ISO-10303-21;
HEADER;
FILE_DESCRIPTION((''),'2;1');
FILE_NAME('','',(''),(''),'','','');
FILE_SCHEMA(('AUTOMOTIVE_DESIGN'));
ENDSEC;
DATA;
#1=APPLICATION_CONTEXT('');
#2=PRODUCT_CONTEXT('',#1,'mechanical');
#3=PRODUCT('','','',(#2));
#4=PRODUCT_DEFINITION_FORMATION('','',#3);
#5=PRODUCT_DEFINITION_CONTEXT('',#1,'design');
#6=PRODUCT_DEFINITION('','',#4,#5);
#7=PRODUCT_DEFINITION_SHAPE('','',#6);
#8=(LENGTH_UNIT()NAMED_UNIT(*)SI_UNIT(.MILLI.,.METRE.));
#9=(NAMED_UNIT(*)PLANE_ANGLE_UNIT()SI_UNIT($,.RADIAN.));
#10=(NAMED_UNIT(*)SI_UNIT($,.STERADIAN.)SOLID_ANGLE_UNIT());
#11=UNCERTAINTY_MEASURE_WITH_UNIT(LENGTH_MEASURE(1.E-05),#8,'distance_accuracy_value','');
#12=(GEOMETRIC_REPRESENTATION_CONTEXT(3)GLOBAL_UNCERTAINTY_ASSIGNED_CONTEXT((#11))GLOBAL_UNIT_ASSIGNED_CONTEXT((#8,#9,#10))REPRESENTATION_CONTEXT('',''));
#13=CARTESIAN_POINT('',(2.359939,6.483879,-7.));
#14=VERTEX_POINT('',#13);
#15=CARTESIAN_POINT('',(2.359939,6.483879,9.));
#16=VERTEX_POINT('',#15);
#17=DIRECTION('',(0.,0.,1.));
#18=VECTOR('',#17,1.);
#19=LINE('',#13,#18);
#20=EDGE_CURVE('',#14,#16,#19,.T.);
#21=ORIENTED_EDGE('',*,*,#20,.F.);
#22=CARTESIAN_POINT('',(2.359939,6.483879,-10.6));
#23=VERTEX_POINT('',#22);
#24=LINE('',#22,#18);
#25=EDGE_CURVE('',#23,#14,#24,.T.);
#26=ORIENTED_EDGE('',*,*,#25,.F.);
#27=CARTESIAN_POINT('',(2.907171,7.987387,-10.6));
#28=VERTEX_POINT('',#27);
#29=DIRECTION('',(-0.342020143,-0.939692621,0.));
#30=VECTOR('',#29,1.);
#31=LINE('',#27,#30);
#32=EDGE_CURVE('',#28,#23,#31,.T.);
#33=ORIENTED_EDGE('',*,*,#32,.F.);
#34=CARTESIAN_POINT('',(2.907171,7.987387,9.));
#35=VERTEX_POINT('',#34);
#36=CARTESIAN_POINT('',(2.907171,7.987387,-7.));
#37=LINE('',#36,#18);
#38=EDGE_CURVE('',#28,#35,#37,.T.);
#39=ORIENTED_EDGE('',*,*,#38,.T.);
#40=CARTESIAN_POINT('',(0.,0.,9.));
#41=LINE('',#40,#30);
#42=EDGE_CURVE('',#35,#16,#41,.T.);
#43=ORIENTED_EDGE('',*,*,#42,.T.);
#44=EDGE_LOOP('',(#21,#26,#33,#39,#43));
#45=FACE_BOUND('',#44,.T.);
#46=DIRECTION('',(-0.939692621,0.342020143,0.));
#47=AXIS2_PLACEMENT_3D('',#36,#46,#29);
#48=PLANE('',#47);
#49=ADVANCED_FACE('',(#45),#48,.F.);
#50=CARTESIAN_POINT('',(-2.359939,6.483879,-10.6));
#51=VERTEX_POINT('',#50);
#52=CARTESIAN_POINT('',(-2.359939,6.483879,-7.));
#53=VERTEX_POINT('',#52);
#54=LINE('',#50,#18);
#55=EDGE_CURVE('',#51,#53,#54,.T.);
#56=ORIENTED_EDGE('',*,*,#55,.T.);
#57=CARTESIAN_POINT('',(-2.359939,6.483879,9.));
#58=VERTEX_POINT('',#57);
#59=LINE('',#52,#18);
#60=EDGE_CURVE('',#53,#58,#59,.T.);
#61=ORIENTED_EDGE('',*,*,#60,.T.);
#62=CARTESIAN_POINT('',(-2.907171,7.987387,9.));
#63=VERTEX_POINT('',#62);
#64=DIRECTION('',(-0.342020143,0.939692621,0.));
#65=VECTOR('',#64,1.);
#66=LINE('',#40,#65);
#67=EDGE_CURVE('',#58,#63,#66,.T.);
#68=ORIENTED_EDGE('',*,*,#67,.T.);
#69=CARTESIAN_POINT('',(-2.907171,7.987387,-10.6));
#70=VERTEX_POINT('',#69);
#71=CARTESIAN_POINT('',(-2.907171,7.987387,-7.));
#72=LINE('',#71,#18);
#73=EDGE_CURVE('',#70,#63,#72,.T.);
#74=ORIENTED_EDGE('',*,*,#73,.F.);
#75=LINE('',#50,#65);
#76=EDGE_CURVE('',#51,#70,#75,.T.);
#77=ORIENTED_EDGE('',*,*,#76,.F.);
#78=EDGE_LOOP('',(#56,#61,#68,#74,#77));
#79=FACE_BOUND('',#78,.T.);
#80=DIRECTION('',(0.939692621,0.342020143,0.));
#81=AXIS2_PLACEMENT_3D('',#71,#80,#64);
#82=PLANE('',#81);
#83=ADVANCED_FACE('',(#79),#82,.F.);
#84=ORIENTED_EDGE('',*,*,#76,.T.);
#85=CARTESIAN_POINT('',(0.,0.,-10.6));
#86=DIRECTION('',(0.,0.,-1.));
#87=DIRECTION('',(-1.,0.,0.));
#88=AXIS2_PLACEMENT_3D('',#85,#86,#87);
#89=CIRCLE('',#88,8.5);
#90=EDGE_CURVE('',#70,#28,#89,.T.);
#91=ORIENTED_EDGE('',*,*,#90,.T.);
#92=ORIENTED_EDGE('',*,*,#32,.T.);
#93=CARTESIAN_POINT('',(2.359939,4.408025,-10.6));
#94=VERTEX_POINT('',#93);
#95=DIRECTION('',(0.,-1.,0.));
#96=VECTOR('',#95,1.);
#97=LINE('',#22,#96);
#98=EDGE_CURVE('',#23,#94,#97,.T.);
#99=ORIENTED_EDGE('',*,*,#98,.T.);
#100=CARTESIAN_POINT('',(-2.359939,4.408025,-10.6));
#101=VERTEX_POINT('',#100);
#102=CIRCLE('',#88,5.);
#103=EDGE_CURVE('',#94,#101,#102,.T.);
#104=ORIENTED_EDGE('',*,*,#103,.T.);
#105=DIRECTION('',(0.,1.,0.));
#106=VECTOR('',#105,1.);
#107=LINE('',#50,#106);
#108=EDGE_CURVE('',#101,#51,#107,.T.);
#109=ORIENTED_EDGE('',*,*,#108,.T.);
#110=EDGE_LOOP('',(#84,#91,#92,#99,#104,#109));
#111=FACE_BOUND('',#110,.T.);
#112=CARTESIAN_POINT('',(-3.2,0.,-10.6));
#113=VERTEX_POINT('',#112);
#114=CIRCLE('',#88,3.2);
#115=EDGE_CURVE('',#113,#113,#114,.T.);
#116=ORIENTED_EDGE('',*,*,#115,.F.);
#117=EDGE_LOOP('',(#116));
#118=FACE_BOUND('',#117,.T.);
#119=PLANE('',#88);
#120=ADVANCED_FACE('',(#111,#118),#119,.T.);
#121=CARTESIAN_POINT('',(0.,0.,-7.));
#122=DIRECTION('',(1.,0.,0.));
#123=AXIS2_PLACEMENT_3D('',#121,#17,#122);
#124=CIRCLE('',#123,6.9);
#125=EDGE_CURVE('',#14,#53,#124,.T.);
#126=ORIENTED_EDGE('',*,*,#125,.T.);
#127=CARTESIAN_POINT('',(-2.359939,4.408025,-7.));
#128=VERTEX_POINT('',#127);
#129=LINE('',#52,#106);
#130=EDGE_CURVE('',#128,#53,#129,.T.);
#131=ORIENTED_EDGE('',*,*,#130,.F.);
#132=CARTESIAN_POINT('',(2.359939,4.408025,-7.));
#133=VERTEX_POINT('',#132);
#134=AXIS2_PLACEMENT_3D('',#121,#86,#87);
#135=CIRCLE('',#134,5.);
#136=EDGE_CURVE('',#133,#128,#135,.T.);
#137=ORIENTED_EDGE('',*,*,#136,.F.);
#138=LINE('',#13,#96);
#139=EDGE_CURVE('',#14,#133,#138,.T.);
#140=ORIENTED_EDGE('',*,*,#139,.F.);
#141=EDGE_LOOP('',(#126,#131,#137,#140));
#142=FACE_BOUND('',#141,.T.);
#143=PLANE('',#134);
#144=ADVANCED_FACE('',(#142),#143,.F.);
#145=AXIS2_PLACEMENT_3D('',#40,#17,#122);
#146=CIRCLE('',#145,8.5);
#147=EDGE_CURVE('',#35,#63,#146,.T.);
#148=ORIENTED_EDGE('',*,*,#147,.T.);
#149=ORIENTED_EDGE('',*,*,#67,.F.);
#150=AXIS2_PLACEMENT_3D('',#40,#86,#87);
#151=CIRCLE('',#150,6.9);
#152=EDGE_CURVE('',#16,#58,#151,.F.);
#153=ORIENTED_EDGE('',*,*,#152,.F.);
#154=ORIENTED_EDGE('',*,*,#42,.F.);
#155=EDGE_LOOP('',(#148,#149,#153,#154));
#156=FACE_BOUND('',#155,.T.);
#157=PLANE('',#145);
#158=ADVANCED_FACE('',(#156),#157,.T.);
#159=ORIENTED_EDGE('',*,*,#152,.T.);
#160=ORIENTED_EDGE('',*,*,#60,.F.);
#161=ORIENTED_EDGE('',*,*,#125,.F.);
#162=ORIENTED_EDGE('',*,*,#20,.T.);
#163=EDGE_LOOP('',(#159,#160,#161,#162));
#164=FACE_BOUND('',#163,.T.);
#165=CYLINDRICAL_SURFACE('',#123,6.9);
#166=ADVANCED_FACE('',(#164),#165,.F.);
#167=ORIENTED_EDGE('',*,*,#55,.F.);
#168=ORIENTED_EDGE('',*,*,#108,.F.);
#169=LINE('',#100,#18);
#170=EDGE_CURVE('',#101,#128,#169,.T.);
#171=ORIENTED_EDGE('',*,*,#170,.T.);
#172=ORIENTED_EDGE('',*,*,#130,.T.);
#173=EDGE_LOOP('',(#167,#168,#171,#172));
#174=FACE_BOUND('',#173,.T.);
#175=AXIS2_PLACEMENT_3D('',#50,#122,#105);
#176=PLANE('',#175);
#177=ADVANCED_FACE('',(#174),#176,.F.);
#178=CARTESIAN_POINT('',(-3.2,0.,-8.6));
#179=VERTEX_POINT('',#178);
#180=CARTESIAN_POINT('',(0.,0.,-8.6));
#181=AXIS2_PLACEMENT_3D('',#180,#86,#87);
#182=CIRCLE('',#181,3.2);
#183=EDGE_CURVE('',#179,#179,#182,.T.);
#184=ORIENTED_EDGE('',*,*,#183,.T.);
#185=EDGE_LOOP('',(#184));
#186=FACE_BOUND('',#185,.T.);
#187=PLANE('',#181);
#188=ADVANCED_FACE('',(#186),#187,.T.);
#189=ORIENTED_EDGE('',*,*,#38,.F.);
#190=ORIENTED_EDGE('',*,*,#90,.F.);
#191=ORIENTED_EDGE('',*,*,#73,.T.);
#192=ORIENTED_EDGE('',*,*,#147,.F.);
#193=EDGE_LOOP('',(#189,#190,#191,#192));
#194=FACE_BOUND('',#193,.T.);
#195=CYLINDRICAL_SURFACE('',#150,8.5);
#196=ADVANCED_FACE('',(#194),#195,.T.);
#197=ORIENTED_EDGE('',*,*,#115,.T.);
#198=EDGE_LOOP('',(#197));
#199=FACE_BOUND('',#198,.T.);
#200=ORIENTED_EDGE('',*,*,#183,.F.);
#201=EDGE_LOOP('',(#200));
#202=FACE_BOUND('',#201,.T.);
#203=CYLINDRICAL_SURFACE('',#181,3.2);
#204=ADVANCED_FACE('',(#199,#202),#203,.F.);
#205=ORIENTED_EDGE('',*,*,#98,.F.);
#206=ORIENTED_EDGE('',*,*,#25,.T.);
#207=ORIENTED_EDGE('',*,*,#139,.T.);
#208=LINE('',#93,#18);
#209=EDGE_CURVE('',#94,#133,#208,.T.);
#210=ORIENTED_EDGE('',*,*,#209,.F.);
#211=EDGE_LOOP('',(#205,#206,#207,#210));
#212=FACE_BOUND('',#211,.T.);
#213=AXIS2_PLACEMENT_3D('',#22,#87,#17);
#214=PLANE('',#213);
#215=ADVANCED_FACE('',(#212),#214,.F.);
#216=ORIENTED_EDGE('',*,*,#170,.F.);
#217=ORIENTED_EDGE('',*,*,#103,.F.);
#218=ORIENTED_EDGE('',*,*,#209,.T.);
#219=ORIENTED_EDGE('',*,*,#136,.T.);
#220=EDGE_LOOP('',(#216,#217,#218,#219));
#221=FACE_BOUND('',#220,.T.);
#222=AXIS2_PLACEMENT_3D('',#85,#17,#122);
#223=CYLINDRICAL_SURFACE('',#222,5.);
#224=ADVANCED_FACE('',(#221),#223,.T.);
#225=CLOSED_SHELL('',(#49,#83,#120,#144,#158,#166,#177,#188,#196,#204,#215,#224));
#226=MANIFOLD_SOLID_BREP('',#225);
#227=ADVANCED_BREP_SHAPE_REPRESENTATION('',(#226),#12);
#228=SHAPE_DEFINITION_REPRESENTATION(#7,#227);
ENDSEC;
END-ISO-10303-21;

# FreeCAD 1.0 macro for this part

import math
import FreeCAD as App
import Part
import Sketcher
Q = App.Units.Quantity


def add_polygon(sketch, points):
    """Adds a closed chain of lines whose ends are joined by coincident constraints."""
    first, n = sketch.GeometryCount, len(points)
    for a, b in zip(points, points[1:] + points[:1]):
        sketch.addGeometry(Part.LineSegment(App.Vector(*a, 0), App.Vector(*b, 0)), False)
    for i in range(n):
        sketch.addConstraint(Sketcher.Constraint("Coincident", first + i, 2, first + (i + 1) % n, 1))

doc = App.newDocument("Part")
params = doc.addObject("Spreadsheet::Sheet", "Params")
for row, (alias, value) in enumerate([
    ("sketch1_diameter", "17 mm"),
    ("sketch1_diameter2", "1.2 mm"),
    ("sketch1_diameter3", "7.2 mm"),
    ("sketch1_diameter4", "2.5 mm"),
    ("pad1_length", "9 mm"),
    ("sketch2_diameter", "8.6 mm"),
    ("pocket1_length", "0.8 mm"),
    ("sketch3_diameter", "11.8 mm"),
    ("sketch3_diameter2", "7.2 mm"),
    ("pad2_length", "2.5 mm"),
    ("sketch4_height", "2.5 mm"),
    ("groove_angle", "360 deg"),
    ("sketch5_diameter", "8.6 mm"),
    ("pocket2_length", "0.8 mm"),
    ("sketch6_radius", "6.9 mm"),
    ("sketch6_radius2", "8.5 mm"),
    ("pad3_length", "7 mm"),
    ("sketch7_radius", "8.5 mm"),
    ("sketch7_radius2", "6.9 mm"),
    ("sketch8_radius", "5 mm"),
    ("sketch8_radius2", "8.5 mm"),
    ("sketch8_length", "1.6 mm"),
    ("pad4_length", "3.6 mm"),
    ("sketch9_diameter", "6.4 mm"),
    ("pocket4_length", "2 mm"),
], start=1):
    params.set(f"A{row}", alias)
    params.set(f"B{row}", "=" + value)
    params.setAlias(f"B{row}", alias)

body = doc.addObject("PartDesign::Body", "Body")

# Sketch on XY plane
sketch1 = body.newObject("Sketcher::SketchObject", "Sketch")
sketch1.AttachmentSupport = (doc.getObject("XY_Plane"), [""])
sketch1.MapMode = "FlatFace"
sketch1.addGeometry(Part.Circle(App.Vector(0, 0, 0), App.Vector(0, 0, 1), 8.5), False)
sketch1.addGeometry(Part.Circle(App.Vector(-6.8, 0, 0), App.Vector(0, 0, 1), 0.6), False)
sketch1.addGeometry(Part.Circle(App.Vector(0, 0, 0), App.Vector(0, 0, 1), 3.6), False)
sketch1.addGeometry(Part.Circle(App.Vector(6.125, 0, 0), App.Vector(0, 0, 1), 1.25), False)
sketch1.addConstraint(Sketcher.Constraint("Coincident", 0, 3, -1, 1))
sketch1.addConstraint(Sketcher.Constraint("Coincident", 2, 3, -1, 1))
sketch1.addConstraint(Sketcher.Constraint("PointOnObject", 1, 3, -1))
sketch1.addConstraint(Sketcher.Constraint("PointOnObject", 3, 3, -1))
sketch1.addConstraint(Sketcher.Constraint("Diameter", 0, Q("17 mm")))
sketch1.addConstraint(Sketcher.Constraint("Diameter", 1, Q("1.2 mm")))
sketch1.addConstraint(Sketcher.Constraint("Diameter", 2, Q("7.2 mm")))
sketch1.addConstraint(Sketcher.Constraint("Diameter", 3, Q("2.5 mm")))
sketch1.addConstraint(Sketcher.Constraint("DistanceX", 1, 3, -1, 1, Q("6.8 mm")))
sketch1.addConstraint(Sketcher.Constraint("DistanceX", -1, 1, 3, 3, Q("6.125 mm")))
sketch1.setExpression("Constraints[4]", "Params.sketch1_diameter")
sketch1.setExpression("Constraints[5]", "Params.sketch1_diameter2")
sketch1.setExpression("Constraints[6]", "Params.sketch1_diameter3")
sketch1.setExpression("Constraints[7]", "Params.sketch1_diameter4")
pad1 = body.newObject("PartDesign::Pad", "Pad")
pad1.Profile = sketch1
pad1.setExpression("Length", "Params.pad1_length")

# Sketch on XY plane
sketch2 = body.newObject("Sketcher::SketchObject", "Sketch001")
sketch2.AttachmentSupport = (doc.getObject("XY_Plane"), [""])
sketch2.MapMode = "FlatFace"
sketch2.AttachmentOffset = App.Placement(App.Vector(0, 0, 9), App.Rotation())
sketch2.addGeometry(Part.Circle(App.Vector(0, 0, 0), App.Vector(0, 0, 1), 4.3), False)
sketch2.addConstraint(Sketcher.Constraint("Coincident", 0, 3, -1, 1))
sketch2.addConstraint(Sketcher.Constraint("Diameter", 0, Q("8.6 mm")))
sketch2.setExpression("Constraints[1]", "Params.sketch2_diameter")
pocket1 = body.newObject("PartDesign::Pocket", "Pocket")
pocket1.Profile = sketch2
pocket1.setExpression("Length", "Params.pocket1_length")

# Sketch on XY plane
sketch3 = body.newObject("Sketcher::SketchObject", "Sketch002")
sketch3.AttachmentSupport = (doc.getObject("XY_Plane"), [""])
sketch3.MapMode = "FlatFace"
sketch3.addGeometry(Part.Circle(App.Vector(0, 0, 0), App.Vector(0, 0, 1), 5.9), False)
sketch3.addGeometry(Part.Circle(App.Vector(0, 0, 0), App.Vector(0, 0, 1), 3.6), False)
sketch3.addConstraint(Sketcher.Constraint("Coincident", 0, 3, -1, 1))
sketch3.addConstraint(Sketcher.Constraint("Coincident", 1, 3, -1, 1))
sketch3.addConstraint(Sketcher.Constraint("Diameter", 0, Q("11.8 mm")))
sketch3.addConstraint(Sketcher.Constraint("Diameter", 1, Q("7.2 mm")))
sketch3.setExpression("Constraints[2]", "Params.sketch3_diameter")
sketch3.setExpression("Constraints[3]", "Params.sketch3_diameter2")
pad2 = body.newObject("PartDesign::Pad", "Pad001")
pad2.Profile = sketch3
pad2.setExpression("Length", "Params.pad2_length")
pad2.Reversed = True

# Sketch on YZ plane
sketch4 = body.newObject("Sketcher::SketchObject", "Sketch003")
sketch4.AttachmentSupport = (doc.getObject("YZ_Plane"), [""])
sketch4.MapMode = "FlatFace"
add_polygon(sketch4, [(5.9, -2.5), (5.9, 0), (4.6, -1.25)])  # lines 0-2
sketch4.addConstraint(Sketcher.Constraint("Vertical", 0))
sketch4.addConstraint(Sketcher.Constraint("PointOnObject", 0, 2, -1))
sketch4.addConstraint(Sketcher.Constraint("Equal", 1, 2))
sketch4.addConstraint(Sketcher.Constraint("DistanceY", 0, 1, 0, 2, Q("2.5 mm")))
sketch4.addConstraint(Sketcher.Constraint("DistanceX", -1, 1, 0, 2, Q("5.9 mm")))
sketch4.addConstraint(Sketcher.Constraint("DistanceX", -1, 1, 1, 2, Q("4.6 mm")))
sketch4.setExpression("Constraints[6]", "Params.sketch4_height")
groove = body.newObject("PartDesign::Groove", "Groove")
groove.Profile = sketch4
groove.ReferenceAxis = (sketch4, ["V_Axis"])
groove.setExpression("Angle", "Params.groove_angle")

# Sketch on XY plane
sketch5 = body.newObject("Sketcher::SketchObject", "Sketch004")
sketch5.AttachmentSupport = (doc.getObject("XY_Plane"), [""])
sketch5.MapMode = "FlatFace"
sketch5.AttachmentOffset = App.Placement(App.Vector(0, 0, -2.5), App.Rotation())
sketch5.addGeometry(Part.Circle(App.Vector(0, 0, 0), App.Vector(0, 0, 1), 4.3), False)
sketch5.addConstraint(Sketcher.Constraint("Coincident", 0, 3, -1, 1))
sketch5.addConstraint(Sketcher.Constraint("Diameter", 0, Q("8.6 mm")))
sketch5.setExpression("Constraints[1]", "Params.sketch5_diameter")
pocket2 = body.newObject("PartDesign::Pocket", "Pocket001")
pocket2.Profile = sketch5
pocket2.setExpression("Length", "Params.pocket2_length")
pocket2.Reversed = True

# Sketch on XY plane
sketch6 = body.newObject("Sketcher::SketchObject", "Sketch005")
sketch6.AttachmentSupport = (doc.getObject("XY_Plane"), [""])
sketch6.MapMode = "FlatFace"
sketch6.addGeometry(Part.LineSegment(App.Vector(2.907171, 7.987387, 0), App.Vector(2.359939, 6.483879, 0)), False)
sketch6.addGeometry(Part.ArcOfCircle(Part.Circle(App.Vector(0, 0, 0), App.Vector(0, 0, 1), 6.9), math.radians(70), math.radians(110)), False)
sketch6.addGeometry(Part.LineSegment(App.Vector(-2.359939, 6.483879, 0), App.Vector(-2.907171, 7.987387, 0)), False)
sketch6.addGeometry(Part.ArcOfCircle(Part.Circle(App.Vector(0, 0, 0), App.Vector(0, 0, 1), 8.5), math.radians(70), math.radians(110)), False)
sketch6.addConstraint(Sketcher.Constraint("Coincident", 0, 2, 1, 1))
sketch6.addConstraint(Sketcher.Constraint("Coincident", 1, 2, 2, 1))
sketch6.addConstraint(Sketcher.Constraint("Coincident", 2, 2, 3, 2))
sketch6.addConstraint(Sketcher.Constraint("Coincident", 3, 1, 0, 1))
sketch6.addConstraint(Sketcher.Constraint("Coincident", 1, 3, -1, 1))
sketch6.addConstraint(Sketcher.Constraint("Coincident", 3, 3, -1, 1))
sketch6.addConstraint(Sketcher.Constraint("Horizontal", 0, 2, 1, 2))
sketch6.addConstraint(Sketcher.Constraint("Horizontal", 2, 2, 3, 1))
sketch6.addConstraint(Sketcher.Constraint("Radius", 1, Q("6.9 mm")))
sketch6.addConstraint(Sketcher.Constraint("Radius", 3, Q("8.5 mm")))
sketch6.addConstraint(Sketcher.Constraint("Angle", 0, Q("-110 deg")))
sketch6.addConstraint(Sketcher.Constraint("DistanceX", -1, 1, 0, 2, Q("2.359939 mm")))
sketch6.setExpression("Constraints[8]", "Params.sketch6_radius")
sketch6.setExpression("Constraints[9]", "Params.sketch6_radius2")
pad3 = body.newObject("PartDesign::Pad", "Pad002")
pad3.Profile = sketch6
pad3.setExpression("Length", "Params.pad3_length")
pad3.Reversed = True

# Sketch on XY plane
sketch7 = body.newObject("Sketcher::SketchObject", "Sketch006")
sketch7.AttachmentSupport = (doc.getObject("XY_Plane"), [""])
sketch7.MapMode = "FlatFace"
sketch7.AttachmentOffset = App.Placement(App.Vector(0, 0, -7), App.Rotation())
sketch7.addGeometry(Part.ArcOfCircle(Part.Circle(App.Vector(0, 0, 0), App.Vector(0, 0, 1), 8.5), math.radians(110), math.radians(430)), False)
sketch7.addGeometry(Part.LineSegment(App.Vector(-2.907171, 7.987387, 0), App.Vector(-2.359939, 6.483879, 0)), False)
sketch7.addGeometry(Part.ArcOfCircle(Part.Circle(App.Vector(0, 0, 0), App.Vector(0, 0, 1), 6.9), math.radians(70), math.radians(110)), False)
sketch7.addGeometry(Part.LineSegment(App.Vector(2.359939, 6.483879, 0), App.Vector(2.907171, 7.987387, 0)), False)
sketch7.addConstraint(Sketcher.Constraint("Coincident", 0, 1, 1, 1))
sketch7.addConstraint(Sketcher.Constraint("Coincident", 1, 2, 2, 2))
sketch7.addConstraint(Sketcher.Constraint("Coincident", 2, 1, 3, 1))
sketch7.addConstraint(Sketcher.Constraint("Coincident", 3, 2, 0, 2))
sketch7.addConstraint(Sketcher.Constraint("Coincident", 0, 3, -1, 1))
sketch7.addConstraint(Sketcher.Constraint("Coincident", 2, 3, -1, 1))
sketch7.addConstraint(Sketcher.Constraint("Horizontal", 1, 2, 2, 1))
sketch7.addConstraint(Sketcher.Constraint("Horizontal", 0, 1, 3, 2))
sketch7.addConstraint(Sketcher.Constraint("Radius", 0, Q("8.5 mm")))
sketch7.addConstraint(Sketcher.Constraint("Radius", 2, Q("6.9 mm")))
sketch7.addConstraint(Sketcher.Constraint("Angle", 1, Q("-70 deg")))
sketch7.addConstraint(Sketcher.Constraint("DistanceX", 0, 1, -1, 1, Q("2.907171 mm")))
sketch7.setExpression("Constraints[8]", "Params.sketch7_radius")
sketch7.setExpression("Constraints[9]", "Params.sketch7_radius2")
pocket3 = body.newObject("PartDesign::Pocket", "Pocket002")
pocket3.Profile = sketch7
pocket3.Type = "ThroughAll"
pocket3.Midplane = True

# Sketch on XY plane
sketch8 = body.newObject("Sketcher::SketchObject", "Sketch007")
sketch8.AttachmentSupport = (doc.getObject("XY_Plane"), [""])
sketch8.MapMode = "FlatFace"
sketch8.AttachmentOffset = App.Placement(App.Vector(0, 0, -7), App.Rotation())
sketch8.addGeometry(Part.LineSegment(App.Vector(2.359939, 6.483879, 0), App.Vector(2.359939, 4.408025, 0)), False)
sketch8.addGeometry(Part.ArcOfCircle(Part.Circle(App.Vector(0, 0, 0), App.Vector(0, 0, 1), 5), math.radians(118.163406), math.radians(421.836594)), False)
sketch8.addGeometry(Part.LineSegment(App.Vector(-2.359939, 4.408025, 0), App.Vector(-2.359939, 6.483879, 0)), False)
sketch8.addGeometry(Part.LineSegment(App.Vector(-2.359939, 6.483879, 0), App.Vector(-2.907171, 7.987387, 0)), False)
sketch8.addGeometry(Part.ArcOfCircle(Part.Circle(App.Vector(0, 0, 0), App.Vector(0, 0, 1), 8.5), math.radians(70), math.radians(110)), False)
sketch8.addGeometry(Part.LineSegment(App.Vector(2.907171, 7.987387, 0), App.Vector(2.359939, 6.483879, 0)), False)
sketch8.addConstraint(Sketcher.Constraint("Coincident", 0, 2, 1, 2))
sketch8.addConstraint(Sketcher.Constraint("Coincident", 1, 1, 2, 1))
sketch8.addConstraint(Sketcher.Constraint("Coincident", 2, 2, 3, 1))
sketch8.addConstraint(Sketcher.Constraint("Coincident", 3, 2, 4, 2))
sketch8.addConstraint(Sketcher.Constraint("Coincident", 4, 1, 5, 1))
sketch8.addConstraint(Sketcher.Constraint("Coincident", 5, 2, 0, 1))
sketch8.addConstraint(Sketcher.Constraint("Vertical", 0))
sketch8.addConstraint(Sketcher.Constraint("Vertical", 2))
sketch8.addConstraint(Sketcher.Constraint("Coincident", 1, 3, -1, 1))
sketch8.addConstraint(Sketcher.Constraint("Coincident", 4, 3, -1, 1))
sketch8.addConstraint(Sketcher.Constraint("Symmetric", 2, 2, 5, 2, -2))
sketch8.addConstraint(Sketcher.Constraint("Horizontal", 3, 2, 4, 1))
sketch8.addConstraint(Sketcher.Constraint("Radius", 1, Q("5 mm")))
sketch8.addConstraint(Sketcher.Constraint("Radius", 4, Q("8.5 mm")))
sketch8.addConstraint(Sketcher.Constraint("Angle", 3, Q("110 deg")))
sketch8.addConstraint(Sketcher.Constraint("Distance", 3, Q("1.6 mm")))
sketch8.addConstraint(Sketcher.Constraint("DistanceY", 0, 2, 0, 1, Q("2.075854 mm")))
sketch8.setExpression("Constraints[12]", "Params.sketch8_radius")
sketch8.setExpression("Constraints[13]", "Params.sketch8_radius2")
sketch8.setExpression("Constraints[15]", "Params.sketch8_length")
pad4 = body.newObject("PartDesign::Pad", "Pad003")
pad4.Profile = sketch8
pad4.setExpression("Length", "Params.pad4_length")
pad4.Reversed = True

# Sketch on XY plane
sketch9 = body.newObject("Sketcher::SketchObject", "Sketch008")
sketch9.AttachmentSupport = (doc.getObject("XY_Plane"), [""])
sketch9.MapMode = "FlatFace"
sketch9.AttachmentOffset = App.Placement(App.Vector(0, 0, -10.6), App.Rotation())
sketch9.addGeometry(Part.Circle(App.Vector(0, 0, 0), App.Vector(0, 0, 1), 3.2), False)
sketch9.addConstraint(Sketcher.Constraint("Coincident", 0, 3, -1, 1))
sketch9.addConstraint(Sketcher.Constraint("Diameter", 0, Q("6.4 mm")))
sketch9.setExpression("Constraints[1]", "Params.sketch9_diameter")
pocket4 = body.newObject("PartDesign::Pocket", "Pocket003")
pocket4.Profile = sketch9
pocket4.setExpression("Length", "Params.pocket4_length")
pocket4.Reversed = True

doc.recompute()
